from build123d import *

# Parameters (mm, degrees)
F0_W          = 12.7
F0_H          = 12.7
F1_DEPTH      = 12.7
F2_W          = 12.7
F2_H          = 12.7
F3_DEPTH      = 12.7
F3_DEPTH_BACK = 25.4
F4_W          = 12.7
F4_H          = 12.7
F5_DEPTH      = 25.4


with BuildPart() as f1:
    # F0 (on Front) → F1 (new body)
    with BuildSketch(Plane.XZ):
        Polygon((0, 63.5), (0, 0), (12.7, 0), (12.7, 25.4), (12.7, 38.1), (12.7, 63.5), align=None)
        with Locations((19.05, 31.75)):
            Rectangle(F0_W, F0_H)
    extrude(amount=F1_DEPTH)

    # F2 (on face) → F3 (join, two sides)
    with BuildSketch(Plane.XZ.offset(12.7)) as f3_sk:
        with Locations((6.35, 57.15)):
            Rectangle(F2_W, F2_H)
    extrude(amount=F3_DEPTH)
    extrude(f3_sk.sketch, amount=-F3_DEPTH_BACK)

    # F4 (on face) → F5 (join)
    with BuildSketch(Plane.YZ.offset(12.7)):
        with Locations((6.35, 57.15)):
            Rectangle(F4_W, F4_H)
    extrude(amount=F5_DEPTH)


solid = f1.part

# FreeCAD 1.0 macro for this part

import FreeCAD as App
import Part
import Sketcher
Q = App.Units.Quantity


def add_polygon(sketch, points):
    """Adds a closed chain of lines whose ends are joined by coincident constraints."""
    first, n = sketch.GeometryCount, len(points)
    for a, b in zip(points, points[1:] + points[:1]):
        sketch.addGeometry(Part.LineSegment(App.Vector(*a, 0), App.Vector(*b, 0)), False)
    for i in range(n):
        sketch.addConstraint(Sketcher.Constraint("Coincident", first + i, 2, first + (i + 1) % n, 1))

doc = App.newDocument("Part")
body = doc.addObject("PartDesign::Body", "Body")

sketch1 = body.newObject("Sketcher::SketchObject", "Sketch")
sketch1.AttachmentSupport = (doc.getObject("XZ_Plane"), [""])
sketch1.MapMode = "FlatFace"
add_polygon(sketch1, [(0, 64), (0, 0), (13, 0), (13, 25), (25, 25), (25, 38), (13, 38), (13, 64)])
sketch1.addConstraint(Sketcher.Constraint("Vertical", 0))
sketch1.addConstraint(Sketcher.Constraint("Horizontal", 1))
sketch1.addConstraint(Sketcher.Constraint("Vertical", 2))
sketch1.addConstraint(Sketcher.Constraint("Horizontal", 3))
sketch1.addConstraint(Sketcher.Constraint("Vertical", 4))
sketch1.addConstraint(Sketcher.Constraint("Horizontal", 5))
sketch1.addConstraint(Sketcher.Constraint("Vertical", 6))
sketch1.addConstraint(Sketcher.Constraint("Horizontal", 7))
sketch1.addConstraint(Sketcher.Constraint("Coincident", 0, 2, -1, 1))
sketch1.addConstraint(Sketcher.Constraint("Vertical", 2, 2, 5, 2))
sketch1.addConstraint(Sketcher.Constraint("Equal", 1, 3))
sketch1.addConstraint(Sketcher.Constraint("Equal", 7, 4))
sketch1.addConstraint(Sketcher.Constraint("Equal", 2, 6))
sketch1.addConstraint(Sketcher.Constraint("DistanceY", 2, 1, 2, 2, Q("1 in")))
sketch1.addConstraint(Sketcher.Constraint("DistanceX", 1, 1, 1, 2, Q("0.5 in")))
pad1 = body.newObject("PartDesign::Pad", "Pad")
pad1.Profile = sketch1
pad1.Length = Q("0.5 in")

sketch2 = body.newObject("Sketcher::SketchObject", "Sketch001")
sketch2.AttachmentSupport = (doc.getObject("XZ_Plane"), [""])
sketch2.MapMode = "FlatFace"
sketch2.AttachmentOffset = App.Placement(App.Vector(0, 0, 0.5 * 25.4), App.Rotation())
add_polygon(sketch2, [(0, 64), (0, 51), (13, 51), (13, 64)])
sketch2.addConstraint(Sketcher.Constraint("Vertical", 0))
sketch2.addConstraint(Sketcher.Constraint("Horizontal", 1))
sketch2.addConstraint(Sketcher.Constraint("Vertical", 2))
sketch2.addConstraint(Sketcher.Constraint("Horizontal", 3))
sketch2.addConstraint(Sketcher.Constraint("PointOnObject", 0, 2, -2))
sketch2.addConstraint(Sketcher.Constraint("Equal", 3, 0))
sketch2.addConstraint(Sketcher.Constraint("DistanceX", 1, 1, 1, 2, Q("0.5 in")))
sketch2.addConstraint(Sketcher.Constraint("DistanceY", -1, 1, 0, 2, Q("2 in")))
pad2 = body.newObject("PartDesign::Pad", "Pad001")
pad2.Profile = sketch2
pad2.Type = "TwoLengths"
pad2.Length = Q("0.5 in")
pad2.Length2 = Q("1 in")

sketch3 = body.newObject("Sketcher::SketchObject", "Sketch002")
sketch3.AttachmentSupport = (doc.getObject("YZ_Plane"), [""])
sketch3.MapMode = "FlatFace"
sketch3.AttachmentOffset = App.Placement(App.Vector(0, 0, 0.5 * 25.4), App.Rotation())
add_polygon(sketch3, [(0, 64), (0, 51), (13, 51), (13, 64)])
sketch3.addConstraint(Sketcher.Constraint("Vertical", 0))
sketch3.addConstraint(Sketcher.Constraint("Horizontal", 1))
sketch3.addConstraint(Sketcher.Constraint("Vertical", 2))
sketch3.addConstraint(Sketcher.Constraint("Horizontal", 3))
sketch3.addConstraint(Sketcher.Constraint("PointOnObject", 0, 2, -2))
sketch3.addConstraint(Sketcher.Constraint("Equal", 3, 0))
sketch3.addConstraint(Sketcher.Constraint("DistanceX", 1, 1, 1, 2, Q("0.5 in")))
sketch3.addConstraint(Sketcher.Constraint("DistanceY", -1, 1, 0, 2, Q("2 in")))
pad3 = body.newObject("PartDesign::Pad", "Pad002")
pad3.Profile = sketch3
pad3.Length = Q("1 in")

doc.recompute()
